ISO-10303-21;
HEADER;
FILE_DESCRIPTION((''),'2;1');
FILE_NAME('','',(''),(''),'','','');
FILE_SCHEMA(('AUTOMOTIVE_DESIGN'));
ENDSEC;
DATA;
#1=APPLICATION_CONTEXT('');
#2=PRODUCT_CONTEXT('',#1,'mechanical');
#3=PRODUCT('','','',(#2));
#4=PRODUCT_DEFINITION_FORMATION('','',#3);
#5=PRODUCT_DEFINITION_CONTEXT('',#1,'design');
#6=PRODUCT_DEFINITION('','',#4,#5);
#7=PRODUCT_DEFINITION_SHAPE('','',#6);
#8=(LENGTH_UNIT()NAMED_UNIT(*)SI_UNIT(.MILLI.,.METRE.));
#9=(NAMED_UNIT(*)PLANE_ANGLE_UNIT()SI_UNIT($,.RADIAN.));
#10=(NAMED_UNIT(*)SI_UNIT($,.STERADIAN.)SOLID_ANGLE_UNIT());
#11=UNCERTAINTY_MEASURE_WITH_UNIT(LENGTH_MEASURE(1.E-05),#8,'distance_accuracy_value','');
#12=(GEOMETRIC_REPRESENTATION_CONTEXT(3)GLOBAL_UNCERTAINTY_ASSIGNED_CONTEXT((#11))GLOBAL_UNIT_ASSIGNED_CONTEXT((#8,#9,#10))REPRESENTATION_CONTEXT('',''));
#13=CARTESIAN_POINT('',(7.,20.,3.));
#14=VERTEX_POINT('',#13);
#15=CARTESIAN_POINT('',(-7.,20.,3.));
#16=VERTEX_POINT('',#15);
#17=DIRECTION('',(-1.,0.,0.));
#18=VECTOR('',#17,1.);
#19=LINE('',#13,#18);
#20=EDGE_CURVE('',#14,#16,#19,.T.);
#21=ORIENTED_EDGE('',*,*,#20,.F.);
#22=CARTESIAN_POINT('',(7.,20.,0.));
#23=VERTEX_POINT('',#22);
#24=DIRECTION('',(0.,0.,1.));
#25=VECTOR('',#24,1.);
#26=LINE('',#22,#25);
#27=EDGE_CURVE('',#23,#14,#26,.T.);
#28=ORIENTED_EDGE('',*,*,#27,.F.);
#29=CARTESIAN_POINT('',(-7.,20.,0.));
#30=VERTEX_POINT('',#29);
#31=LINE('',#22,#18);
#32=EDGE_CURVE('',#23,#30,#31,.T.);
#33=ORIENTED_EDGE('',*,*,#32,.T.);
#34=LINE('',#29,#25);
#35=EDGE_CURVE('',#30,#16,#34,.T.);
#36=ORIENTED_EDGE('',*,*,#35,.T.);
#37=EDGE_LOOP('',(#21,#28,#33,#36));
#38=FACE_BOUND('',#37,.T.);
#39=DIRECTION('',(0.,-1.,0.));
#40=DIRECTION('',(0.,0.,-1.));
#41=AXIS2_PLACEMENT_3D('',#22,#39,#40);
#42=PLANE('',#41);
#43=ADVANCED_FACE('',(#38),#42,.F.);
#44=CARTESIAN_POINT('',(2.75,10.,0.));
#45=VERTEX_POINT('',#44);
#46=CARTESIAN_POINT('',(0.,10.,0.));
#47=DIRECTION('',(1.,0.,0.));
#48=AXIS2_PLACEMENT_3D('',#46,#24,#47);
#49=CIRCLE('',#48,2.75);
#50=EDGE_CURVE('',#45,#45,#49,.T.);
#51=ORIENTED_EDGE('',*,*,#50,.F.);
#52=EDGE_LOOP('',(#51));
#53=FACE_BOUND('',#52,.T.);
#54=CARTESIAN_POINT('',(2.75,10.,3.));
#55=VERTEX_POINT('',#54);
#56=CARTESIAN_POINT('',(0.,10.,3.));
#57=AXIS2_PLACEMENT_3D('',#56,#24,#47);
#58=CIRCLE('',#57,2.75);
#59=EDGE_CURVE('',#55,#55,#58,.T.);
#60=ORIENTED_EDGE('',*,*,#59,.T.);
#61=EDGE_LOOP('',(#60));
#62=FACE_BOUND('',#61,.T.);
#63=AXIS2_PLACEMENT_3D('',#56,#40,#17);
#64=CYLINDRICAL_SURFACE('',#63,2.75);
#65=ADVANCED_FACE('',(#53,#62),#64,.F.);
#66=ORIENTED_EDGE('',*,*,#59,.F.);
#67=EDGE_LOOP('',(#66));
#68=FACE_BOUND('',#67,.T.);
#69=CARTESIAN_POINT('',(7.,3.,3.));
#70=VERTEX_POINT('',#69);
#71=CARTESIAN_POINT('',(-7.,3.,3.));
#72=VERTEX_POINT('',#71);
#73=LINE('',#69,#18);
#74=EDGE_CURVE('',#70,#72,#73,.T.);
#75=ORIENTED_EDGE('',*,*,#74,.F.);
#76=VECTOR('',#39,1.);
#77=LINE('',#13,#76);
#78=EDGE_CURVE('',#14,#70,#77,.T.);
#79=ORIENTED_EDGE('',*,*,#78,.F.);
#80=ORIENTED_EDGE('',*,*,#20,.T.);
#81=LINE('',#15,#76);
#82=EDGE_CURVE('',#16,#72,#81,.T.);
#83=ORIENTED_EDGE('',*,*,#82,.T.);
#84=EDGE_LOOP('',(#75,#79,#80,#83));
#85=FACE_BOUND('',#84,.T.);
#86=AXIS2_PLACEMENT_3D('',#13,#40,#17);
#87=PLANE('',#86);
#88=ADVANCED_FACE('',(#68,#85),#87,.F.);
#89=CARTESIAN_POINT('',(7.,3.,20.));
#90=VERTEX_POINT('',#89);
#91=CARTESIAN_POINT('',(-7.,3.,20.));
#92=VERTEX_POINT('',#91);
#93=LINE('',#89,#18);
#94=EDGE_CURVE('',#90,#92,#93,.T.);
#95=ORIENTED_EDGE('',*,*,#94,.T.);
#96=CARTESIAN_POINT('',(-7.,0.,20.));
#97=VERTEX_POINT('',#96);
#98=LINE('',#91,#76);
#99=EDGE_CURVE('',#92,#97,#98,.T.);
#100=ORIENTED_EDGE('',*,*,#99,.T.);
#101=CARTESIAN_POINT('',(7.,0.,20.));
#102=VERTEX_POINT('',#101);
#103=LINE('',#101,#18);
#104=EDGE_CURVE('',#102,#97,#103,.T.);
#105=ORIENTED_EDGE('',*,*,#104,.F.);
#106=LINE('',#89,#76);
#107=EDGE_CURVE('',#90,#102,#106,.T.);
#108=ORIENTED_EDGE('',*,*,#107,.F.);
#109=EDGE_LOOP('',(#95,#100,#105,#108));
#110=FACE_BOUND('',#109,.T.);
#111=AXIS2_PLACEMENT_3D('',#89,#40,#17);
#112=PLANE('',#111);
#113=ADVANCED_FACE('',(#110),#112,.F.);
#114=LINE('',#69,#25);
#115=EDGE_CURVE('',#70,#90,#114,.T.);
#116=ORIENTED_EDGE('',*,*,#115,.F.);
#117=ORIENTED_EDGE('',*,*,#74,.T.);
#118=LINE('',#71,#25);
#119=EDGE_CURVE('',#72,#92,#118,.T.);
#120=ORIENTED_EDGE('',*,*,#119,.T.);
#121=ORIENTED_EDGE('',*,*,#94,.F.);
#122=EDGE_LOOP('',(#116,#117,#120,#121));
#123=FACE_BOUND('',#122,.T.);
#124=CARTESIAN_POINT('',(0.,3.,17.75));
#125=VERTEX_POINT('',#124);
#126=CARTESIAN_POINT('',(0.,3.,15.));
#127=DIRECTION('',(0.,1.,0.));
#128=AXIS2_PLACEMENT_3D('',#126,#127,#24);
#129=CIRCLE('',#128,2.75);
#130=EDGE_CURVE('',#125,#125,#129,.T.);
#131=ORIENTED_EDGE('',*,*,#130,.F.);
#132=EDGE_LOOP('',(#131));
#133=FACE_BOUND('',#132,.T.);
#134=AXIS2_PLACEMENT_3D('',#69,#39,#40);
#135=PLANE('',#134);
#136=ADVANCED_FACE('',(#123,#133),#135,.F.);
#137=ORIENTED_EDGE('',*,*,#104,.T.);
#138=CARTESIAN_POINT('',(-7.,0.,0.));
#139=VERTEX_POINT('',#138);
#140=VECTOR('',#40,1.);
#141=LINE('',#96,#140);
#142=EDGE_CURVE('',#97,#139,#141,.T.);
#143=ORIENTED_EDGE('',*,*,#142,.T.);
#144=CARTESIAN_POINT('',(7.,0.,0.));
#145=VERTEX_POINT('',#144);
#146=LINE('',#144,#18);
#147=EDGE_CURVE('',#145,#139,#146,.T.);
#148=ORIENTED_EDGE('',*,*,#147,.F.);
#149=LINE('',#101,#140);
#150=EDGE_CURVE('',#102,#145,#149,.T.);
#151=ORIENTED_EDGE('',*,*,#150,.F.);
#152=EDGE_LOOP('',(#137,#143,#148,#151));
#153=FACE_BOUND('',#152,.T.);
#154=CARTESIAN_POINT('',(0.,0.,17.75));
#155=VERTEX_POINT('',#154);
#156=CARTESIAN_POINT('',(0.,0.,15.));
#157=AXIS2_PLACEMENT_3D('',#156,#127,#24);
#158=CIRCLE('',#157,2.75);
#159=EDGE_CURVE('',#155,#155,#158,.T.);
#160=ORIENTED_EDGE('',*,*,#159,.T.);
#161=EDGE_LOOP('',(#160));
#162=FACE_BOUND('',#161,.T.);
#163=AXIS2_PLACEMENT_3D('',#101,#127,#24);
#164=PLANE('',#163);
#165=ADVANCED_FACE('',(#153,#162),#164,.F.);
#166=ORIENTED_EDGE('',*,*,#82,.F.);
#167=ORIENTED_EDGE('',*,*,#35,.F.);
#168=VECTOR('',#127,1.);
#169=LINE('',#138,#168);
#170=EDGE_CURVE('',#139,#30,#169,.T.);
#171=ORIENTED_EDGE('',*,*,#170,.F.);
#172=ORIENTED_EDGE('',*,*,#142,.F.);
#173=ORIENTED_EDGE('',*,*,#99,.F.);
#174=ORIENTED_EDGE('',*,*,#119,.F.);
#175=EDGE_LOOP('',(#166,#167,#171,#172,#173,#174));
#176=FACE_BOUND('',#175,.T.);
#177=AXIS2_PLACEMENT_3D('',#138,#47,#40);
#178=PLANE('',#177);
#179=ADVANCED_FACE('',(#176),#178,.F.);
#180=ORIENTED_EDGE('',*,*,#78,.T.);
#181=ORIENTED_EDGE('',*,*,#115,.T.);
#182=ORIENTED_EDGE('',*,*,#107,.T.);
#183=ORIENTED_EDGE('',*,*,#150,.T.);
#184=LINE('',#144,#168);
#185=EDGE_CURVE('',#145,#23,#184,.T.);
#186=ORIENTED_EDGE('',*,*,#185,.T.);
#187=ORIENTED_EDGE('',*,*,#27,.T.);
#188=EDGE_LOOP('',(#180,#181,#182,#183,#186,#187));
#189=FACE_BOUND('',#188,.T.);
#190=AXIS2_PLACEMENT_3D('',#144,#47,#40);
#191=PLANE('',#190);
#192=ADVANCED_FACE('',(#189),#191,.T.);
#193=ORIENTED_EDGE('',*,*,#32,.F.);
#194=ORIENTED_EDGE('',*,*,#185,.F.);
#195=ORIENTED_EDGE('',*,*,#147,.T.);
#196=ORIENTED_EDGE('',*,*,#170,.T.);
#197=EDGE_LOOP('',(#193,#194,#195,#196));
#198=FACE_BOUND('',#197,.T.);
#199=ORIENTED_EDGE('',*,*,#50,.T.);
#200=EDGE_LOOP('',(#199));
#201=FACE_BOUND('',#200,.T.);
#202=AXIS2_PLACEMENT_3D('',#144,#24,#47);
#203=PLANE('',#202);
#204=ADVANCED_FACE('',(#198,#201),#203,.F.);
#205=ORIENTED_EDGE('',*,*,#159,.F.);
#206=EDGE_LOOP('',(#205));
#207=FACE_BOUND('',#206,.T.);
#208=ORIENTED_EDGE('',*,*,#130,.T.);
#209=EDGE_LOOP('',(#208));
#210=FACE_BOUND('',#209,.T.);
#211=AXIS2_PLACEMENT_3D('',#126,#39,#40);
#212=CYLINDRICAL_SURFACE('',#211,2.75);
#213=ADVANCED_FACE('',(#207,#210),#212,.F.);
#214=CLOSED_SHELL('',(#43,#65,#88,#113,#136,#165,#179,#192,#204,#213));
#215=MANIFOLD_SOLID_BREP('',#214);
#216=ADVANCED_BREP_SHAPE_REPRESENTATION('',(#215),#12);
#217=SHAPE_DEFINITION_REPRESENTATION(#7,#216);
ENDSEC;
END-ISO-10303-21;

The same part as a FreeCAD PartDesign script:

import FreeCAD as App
import Part
import Sketcher

V = App.Vector
Q = App.Units.Quantity


def add_polygon(sketch, points):
    """Adds a closed chain of lines whose ends are joined by coincident constraints."""
    first, n = sketch.GeometryCount, len(points)
    for a, b in zip(points, points[1:] + points[:1]):
        sketch.addGeometry(Part.LineSegment(App.Vector(*a, 0), App.Vector(*b, 0)), False)
    for i in range(n):
        sketch.addConstraint(Sketcher.Constraint("Coincident", first + i, 2, first + (i + 1) % n, 1))

doc = App.newDocument("Part")
body = doc.addObject("PartDesign::Body", "Body")

# Sketch on YZ plane
sketch1 = doc.addObject("Sketcher::SketchObject", "Sketch")
body.addObject(sketch1)
sketch1.AttachmentSupport = (doc.YZ_Plane, [""])
sketch1.MapMode = "FlatFace"
add_polygon(sketch1, [(0, 20), (0, 0), (20, 0), (20, 3), (3, 3), (3, 20)])  # lines 0-5
sketch1.addConstraint([
    Sketcher.Constraint("Vertical", 0),
    Sketcher.Constraint("Horizontal", 1),
    Sketcher.Constraint("Vertical", 2),
    Sketcher.Constraint("Horizontal", 3),
    Sketcher.Constraint("Vertical", 4),
    Sketcher.Constraint("Horizontal", 5),
    Sketcher.Constraint("Coincident", 0, 2, -1, 1),
    Sketcher.Constraint("Equal", 1, 0),
    Sketcher.Constraint("Equal", 5, 2),
    Sketcher.Constraint("DistanceX", 1, 1, 1, 2, Q("20 mm")),
    Sketcher.Constraint("DistanceX", 3, 2, 3, 1, Q("17 mm")),
])
pad1 = doc.addObject("PartDesign::Pad", "Pad")
body.addObject(pad1)
pad1.Profile = sketch1
pad1.Type = "TwoLengths"
pad1.Length = 7
pad1.Length2 = 7

# Sketch on XY plane
sketch2 = doc.addObject("Sketcher::SketchObject", "Sketch001")
body.addObject(sketch2)
sketch2.AttachmentSupport = (doc.XY_Plane, [""])
sketch2.MapMode = "FlatFace"
sketch2.addGeometry(Part.Circle(V(0, 10, 0), V(0, 0, 1), 2.75), False)
sketch2.addConstraint([
    Sketcher.Constraint("PointOnObject", 0, 3, -2),
    Sketcher.Constraint("Diameter", 0, Q("5.5 mm")),
    Sketcher.Constraint("DistanceY", -1, 1, 0, 3, Q("10 mm")),
])
pocket1 = doc.addObject("PartDesign::Pocket", "Pocket")
body.addObject(pocket1)
pocket1.Profile = sketch2
pocket1.Length = 3
pocket1.Reversed = True

# Sketch on XZ plane
sketch3 = doc.addObject("Sketcher::SketchObject", "Sketch002")
body.addObject(sketch3)
sketch3.AttachmentSupport = (doc.XZ_Plane, [""])
sketch3.MapMode = "FlatFace"
sketch3.addGeometry(Part.Circle(V(0, 15, 0), V(0, 0, 1), 2.75), False)
sketch3.addConstraint([
    Sketcher.Constraint("PointOnObject", 0, 3, -2),
    Sketcher.Constraint("Diameter", 0, Q("5.5 mm")),
    Sketcher.Constraint("DistanceY", -1, 1, 0, 3, Q("15 mm")),
])
pocket2 = doc.addObject("PartDesign::Pocket", "Pocket001")
body.addObject(pocket2)
pocket2.Profile = sketch3
pocket2.Length = 3

doc.recompute()
